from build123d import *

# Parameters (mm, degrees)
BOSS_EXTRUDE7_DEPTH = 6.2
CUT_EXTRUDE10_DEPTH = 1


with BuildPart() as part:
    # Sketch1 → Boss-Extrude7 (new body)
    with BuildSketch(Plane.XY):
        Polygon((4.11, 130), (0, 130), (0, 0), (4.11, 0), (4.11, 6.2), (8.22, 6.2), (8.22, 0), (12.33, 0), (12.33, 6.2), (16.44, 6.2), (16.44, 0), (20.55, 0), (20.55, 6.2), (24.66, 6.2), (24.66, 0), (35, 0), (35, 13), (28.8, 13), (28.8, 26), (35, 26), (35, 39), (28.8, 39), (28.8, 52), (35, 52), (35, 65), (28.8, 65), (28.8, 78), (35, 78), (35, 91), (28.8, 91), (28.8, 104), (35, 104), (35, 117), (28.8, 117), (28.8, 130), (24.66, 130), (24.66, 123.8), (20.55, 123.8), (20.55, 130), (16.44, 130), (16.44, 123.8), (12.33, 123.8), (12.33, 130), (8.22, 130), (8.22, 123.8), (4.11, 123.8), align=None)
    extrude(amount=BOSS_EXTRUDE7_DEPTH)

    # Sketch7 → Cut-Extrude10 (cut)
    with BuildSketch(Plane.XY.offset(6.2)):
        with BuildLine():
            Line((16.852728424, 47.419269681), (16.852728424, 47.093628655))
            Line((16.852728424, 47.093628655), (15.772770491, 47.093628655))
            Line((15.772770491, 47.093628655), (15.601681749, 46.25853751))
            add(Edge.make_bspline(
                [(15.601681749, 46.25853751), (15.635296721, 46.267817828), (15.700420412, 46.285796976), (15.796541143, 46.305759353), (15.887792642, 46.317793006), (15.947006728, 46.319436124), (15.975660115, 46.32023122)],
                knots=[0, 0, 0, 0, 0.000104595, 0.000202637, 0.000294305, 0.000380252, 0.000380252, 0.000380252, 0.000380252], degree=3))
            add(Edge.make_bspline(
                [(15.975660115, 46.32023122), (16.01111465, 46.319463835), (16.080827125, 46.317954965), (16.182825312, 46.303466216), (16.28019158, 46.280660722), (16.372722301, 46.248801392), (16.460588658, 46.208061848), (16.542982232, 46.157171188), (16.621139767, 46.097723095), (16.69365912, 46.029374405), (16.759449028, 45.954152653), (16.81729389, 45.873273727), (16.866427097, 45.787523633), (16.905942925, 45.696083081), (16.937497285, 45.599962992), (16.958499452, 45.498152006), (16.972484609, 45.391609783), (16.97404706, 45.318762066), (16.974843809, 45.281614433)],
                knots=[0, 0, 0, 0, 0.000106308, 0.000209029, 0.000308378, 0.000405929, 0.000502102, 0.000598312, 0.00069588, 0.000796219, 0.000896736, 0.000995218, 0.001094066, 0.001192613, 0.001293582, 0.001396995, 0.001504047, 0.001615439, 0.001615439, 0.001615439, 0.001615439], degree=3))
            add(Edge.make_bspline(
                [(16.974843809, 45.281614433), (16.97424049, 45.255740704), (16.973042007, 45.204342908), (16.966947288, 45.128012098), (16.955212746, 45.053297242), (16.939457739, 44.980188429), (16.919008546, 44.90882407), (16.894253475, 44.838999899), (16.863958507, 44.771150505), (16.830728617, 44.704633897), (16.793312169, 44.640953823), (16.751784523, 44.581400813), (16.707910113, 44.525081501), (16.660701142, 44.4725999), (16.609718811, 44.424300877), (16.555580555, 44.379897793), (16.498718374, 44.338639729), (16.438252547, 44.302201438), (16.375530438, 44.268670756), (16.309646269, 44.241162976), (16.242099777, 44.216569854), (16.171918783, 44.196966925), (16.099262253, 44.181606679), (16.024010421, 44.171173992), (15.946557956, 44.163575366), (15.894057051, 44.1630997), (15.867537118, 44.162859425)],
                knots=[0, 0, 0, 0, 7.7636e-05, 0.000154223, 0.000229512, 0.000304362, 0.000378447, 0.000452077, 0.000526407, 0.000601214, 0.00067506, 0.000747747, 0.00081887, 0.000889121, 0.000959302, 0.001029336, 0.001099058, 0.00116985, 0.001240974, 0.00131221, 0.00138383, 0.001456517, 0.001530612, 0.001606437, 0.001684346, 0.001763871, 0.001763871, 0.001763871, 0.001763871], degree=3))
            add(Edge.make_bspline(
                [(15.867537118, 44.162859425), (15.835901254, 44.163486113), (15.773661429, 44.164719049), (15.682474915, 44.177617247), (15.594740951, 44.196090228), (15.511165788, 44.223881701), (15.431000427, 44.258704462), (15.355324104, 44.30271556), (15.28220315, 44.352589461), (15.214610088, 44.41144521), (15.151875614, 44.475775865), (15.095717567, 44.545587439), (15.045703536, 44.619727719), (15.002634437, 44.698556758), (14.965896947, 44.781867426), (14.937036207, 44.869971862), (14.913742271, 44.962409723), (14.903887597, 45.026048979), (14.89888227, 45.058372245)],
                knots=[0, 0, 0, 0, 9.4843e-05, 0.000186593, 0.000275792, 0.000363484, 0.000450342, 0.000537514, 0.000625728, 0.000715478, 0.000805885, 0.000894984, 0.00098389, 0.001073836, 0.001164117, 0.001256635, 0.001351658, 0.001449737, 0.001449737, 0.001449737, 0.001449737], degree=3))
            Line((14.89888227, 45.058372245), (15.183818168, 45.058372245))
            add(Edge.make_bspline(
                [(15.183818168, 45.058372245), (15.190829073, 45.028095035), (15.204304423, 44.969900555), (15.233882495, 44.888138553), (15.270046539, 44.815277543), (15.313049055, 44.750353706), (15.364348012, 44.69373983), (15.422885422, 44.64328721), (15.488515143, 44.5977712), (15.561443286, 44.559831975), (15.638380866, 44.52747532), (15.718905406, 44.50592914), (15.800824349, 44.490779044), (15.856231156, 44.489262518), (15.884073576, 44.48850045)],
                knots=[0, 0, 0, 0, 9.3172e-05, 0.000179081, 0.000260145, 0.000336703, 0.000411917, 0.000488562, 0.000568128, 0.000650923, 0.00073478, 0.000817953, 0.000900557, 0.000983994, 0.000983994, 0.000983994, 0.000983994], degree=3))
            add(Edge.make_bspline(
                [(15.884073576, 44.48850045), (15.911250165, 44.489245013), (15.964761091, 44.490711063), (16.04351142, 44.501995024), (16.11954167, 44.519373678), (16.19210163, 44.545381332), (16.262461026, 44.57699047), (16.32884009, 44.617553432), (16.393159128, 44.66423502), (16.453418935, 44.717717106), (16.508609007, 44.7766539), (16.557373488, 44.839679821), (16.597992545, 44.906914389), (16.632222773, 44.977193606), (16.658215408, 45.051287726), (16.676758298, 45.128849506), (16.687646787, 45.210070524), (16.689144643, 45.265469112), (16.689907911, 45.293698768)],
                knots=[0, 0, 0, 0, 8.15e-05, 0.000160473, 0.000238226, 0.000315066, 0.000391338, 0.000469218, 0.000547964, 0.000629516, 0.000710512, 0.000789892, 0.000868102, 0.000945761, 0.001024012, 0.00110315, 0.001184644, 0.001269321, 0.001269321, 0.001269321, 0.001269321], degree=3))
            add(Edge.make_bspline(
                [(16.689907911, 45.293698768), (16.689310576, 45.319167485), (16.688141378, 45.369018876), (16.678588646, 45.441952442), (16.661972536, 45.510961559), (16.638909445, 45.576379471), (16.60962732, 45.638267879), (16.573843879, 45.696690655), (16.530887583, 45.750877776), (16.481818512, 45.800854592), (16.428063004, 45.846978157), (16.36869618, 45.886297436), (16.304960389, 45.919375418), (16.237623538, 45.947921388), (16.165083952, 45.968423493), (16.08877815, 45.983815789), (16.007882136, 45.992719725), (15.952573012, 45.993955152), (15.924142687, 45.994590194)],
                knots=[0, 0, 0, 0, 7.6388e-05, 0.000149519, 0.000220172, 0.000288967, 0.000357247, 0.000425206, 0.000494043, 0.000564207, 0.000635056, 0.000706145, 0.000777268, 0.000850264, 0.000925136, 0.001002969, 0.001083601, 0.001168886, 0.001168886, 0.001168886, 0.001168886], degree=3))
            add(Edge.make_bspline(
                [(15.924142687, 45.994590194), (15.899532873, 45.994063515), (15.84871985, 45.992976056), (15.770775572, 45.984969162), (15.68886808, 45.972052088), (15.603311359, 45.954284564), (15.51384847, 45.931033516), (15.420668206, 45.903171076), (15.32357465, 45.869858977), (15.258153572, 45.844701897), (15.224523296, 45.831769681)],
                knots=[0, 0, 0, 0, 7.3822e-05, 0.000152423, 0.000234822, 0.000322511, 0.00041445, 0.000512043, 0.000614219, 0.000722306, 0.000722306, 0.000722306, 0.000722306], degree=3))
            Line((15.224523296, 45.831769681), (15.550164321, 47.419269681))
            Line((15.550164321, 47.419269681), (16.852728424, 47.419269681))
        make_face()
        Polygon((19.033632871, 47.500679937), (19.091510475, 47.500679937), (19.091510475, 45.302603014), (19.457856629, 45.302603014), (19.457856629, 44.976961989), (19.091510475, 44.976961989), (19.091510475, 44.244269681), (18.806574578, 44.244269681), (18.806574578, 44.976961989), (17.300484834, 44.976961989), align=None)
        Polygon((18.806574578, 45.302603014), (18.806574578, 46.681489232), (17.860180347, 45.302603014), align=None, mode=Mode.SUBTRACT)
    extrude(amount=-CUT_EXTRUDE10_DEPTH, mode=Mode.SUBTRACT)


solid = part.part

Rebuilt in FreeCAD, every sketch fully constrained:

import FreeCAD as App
import Part
import Sketcher
Q = App.Units.Quantity


def add_polygon(sketch, points):
    """Adds a closed chain of lines whose ends are joined by coincident constraints."""
    first, n = sketch.GeometryCount, len(points)
    for a, b in zip(points, points[1:] + points[:1]):
        sketch.addGeometry(Part.LineSegment(App.Vector(*a, 0), App.Vector(*b, 0)), False)
    for i in range(n):
        sketch.addConstraint(Sketcher.Constraint("Coincident", first + i, 2, first + (i + 1) % n, 1))

doc = App.newDocument("Part")
body = doc.addObject("PartDesign::Body", "Body")

# Sketch on XY plane
sketch1 = doc.addObject("Sketcher::SketchObject", "Sketch")
body.addObject(sketch1)
sketch1.AttachmentSupport = (doc.XY_Plane, [""])
sketch1.MapMode = "FlatFace"
add_polygon(sketch1, [(4.1, 130), (0, 130), (0, 0), (4.1, 0), (4.1, 6.2), (8.2, 6.2), (8.2, 0), (12.3, 0), (12.3, 6.2), (16.4, 6.2), (16.4, 0), (20.6, 0), (20.6, 6.2), (24.7, 6.2), (24.7, 0), (35, 0), (35, 13), (28.8, 13), (28.8, 26), (35, 26), (35, 39), (28.8, 39), (28.8, 52), (35, 52), (35, 65), (28.8, 65), (28.8, 78), (35, 78), (35, 91), (28.8, 91), (28.8, 104), (35, 104), (35, 117), (28.8, 117), (28.8, 130), (24.7, 130), (24.7, 123.8), (20.6, 123.8), (20.6, 130), (16.4, 130), (16.4, 123.8), (12.3, 123.8), (12.3, 130), (8.2, 130), (8.2, 123.8), (4.1, 123.8)])  # lines 0-45
sketch1.addConstraint([
    Sketcher.Constraint("Horizontal", 0),
    Sketcher.Constraint("Vertical", 1),
    Sketcher.Constraint("Horizontal", 2),
    Sketcher.Constraint("Vertical", 3),
    Sketcher.Constraint("Horizontal", 4),
    Sketcher.Constraint("Vertical", 5),
    Sketcher.Constraint("Horizontal", 6),
    Sketcher.Constraint("Vertical", 7),
    Sketcher.Constraint("Horizontal", 8),
    Sketcher.Constraint("Vertical", 9),
    Sketcher.Constraint("Horizontal", 10),
    Sketcher.Constraint("Vertical", 11),
    Sketcher.Constraint("Horizontal", 12),
    Sketcher.Constraint("Vertical", 13),
    Sketcher.Constraint("Horizontal", 14),
    Sketcher.Constraint("Vertical", 15),
    Sketcher.Constraint("Horizontal", 16),
    Sketcher.Constraint("Vertical", 17),
    Sketcher.Constraint("Horizontal", 18),
    Sketcher.Constraint("Vertical", 19),
    Sketcher.Constraint("Horizontal", 20),
    Sketcher.Constraint("Vertical", 21),
    Sketcher.Constraint("Horizontal", 22),
    Sketcher.Constraint("Vertical", 23),
    Sketcher.Constraint("Horizontal", 24),
    Sketcher.Constraint("Vertical", 25),
    Sketcher.Constraint("Horizontal", 26),
    Sketcher.Constraint("Vertical", 27),
    Sketcher.Constraint("Horizontal", 28),
    Sketcher.Constraint("Vertical", 29),
    Sketcher.Constraint("Horizontal", 30),
    Sketcher.Constraint("Vertical", 31),
    Sketcher.Constraint("Horizontal", 32),
    Sketcher.Constraint("Vertical", 33),
    Sketcher.Constraint("Horizontal", 34),
    Sketcher.Constraint("Vertical", 35),
    Sketcher.Constraint("Horizontal", 36),
    Sketcher.Constraint("Vertical", 37),
    Sketcher.Constraint("Horizontal", 38),
    Sketcher.Constraint("Vertical", 39),
    Sketcher.Constraint("Horizontal", 40),
    Sketcher.Constraint("Vertical", 41),
    Sketcher.Constraint("Horizontal", 42),
    Sketcher.Constraint("Vertical", 43),
    Sketcher.Constraint("Horizontal", 44),
    Sketcher.Constraint("Vertical", 45),
    Sketcher.Constraint("Coincident", 1, 2, -1, 1),
    Sketcher.Constraint("PointOnObject", 5, 2, -1),
    Sketcher.Constraint("PointOnObject", 9, 2, -1),
    Sketcher.Constraint("PointOnObject", 13, 2, -1),
    Sketcher.Constraint("Horizontal", 4, 2, 7, 2),
    Sketcher.Constraint("Horizontal", 8, 2, 11, 2),
    Sketcher.Constraint("Horizontal", 0, 2, 33, 2),
    Sketcher.Constraint("Horizontal", 34, 2, 37, 2),
    Sketcher.Constraint("Horizontal", 36, 2, 39, 2),
    Sketcher.Constraint("Horizontal", 38, 2, 41, 2),
    Sketcher.Constraint("Horizontal", 40, 2, 43, 2),
    Sketcher.Constraint("Vertical", 15, 2, 18, 2),
    Sketcher.Constraint("Vertical", 17, 2, 20, 2),
    Sketcher.Constraint("Vertical", 19, 2, 22, 2),
    Sketcher.Constraint("Vertical", 21, 2, 24, 2),
    Sketcher.Constraint("Vertical", 23, 2, 26, 2),
    Sketcher.Constraint("Vertical", 25, 2, 28, 2),
    Sketcher.Constraint("Vertical", 27, 2, 30, 2),
    Sketcher.Constraint("Vertical", 29, 2, 32, 2),
    Sketcher.Constraint("Vertical", 13, 2, 34, 2),
    Sketcher.Constraint("Vertical", 11, 2, 36, 2),
    Sketcher.Constraint("Vertical", 9, 2, 38, 2),
    Sketcher.Constraint("Vertical", 7, 2, 40, 2),
    Sketcher.Constraint("Vertical", 5, 2, 42, 2),
    Sketcher.Constraint("Vertical", 3, 2, 44, 2),
    Sketcher.Constraint("Equal", 2, 4),
    Sketcher.Constraint("Equal", 4, 6),
    Sketcher.Constraint("Equal", 6, 8),
    Sketcher.Constraint("Equal", 8, 10),
    Sketcher.Constraint("Equal", 10, 12),
    Sketcher.Constraint("Equal", 32, 3),
    Sketcher.Constraint("Equal", 15, 17),
    Sketcher.Constraint("Equal", 17, 19),
    Sketcher.Constraint("Equal", 19, 21),
    Sketcher.Constraint("Equal", 21, 23),
    Sketcher.Constraint("Equal", 23, 25),
    Sketcher.Constraint("Equal", 25, 27),
    Sketcher.Constraint("Equal", 27, 29),
    Sketcher.Constraint("Equal", 29, 31),
    Sketcher.Constraint("Equal", 31, 33),
    Sketcher.Constraint("Equal", 13, 35),
    Sketcher.Constraint("DistanceY", 1, 2, 1, 1, Q("130 mm")),
    Sketcher.Constraint("DistanceX", 16, 2, 16, 1, Q("6.2 mm")),
    Sketcher.Constraint("DistanceX", -1, 1, 14, 2, Q("35 mm")),
    Sketcher.Constraint("DistanceX", 0, 2, 0, 1, Q("4.11 mm")),
])
pad1 = doc.addObject("PartDesign::Pad", "Pad")
body.addObject(pad1)
pad1.Profile = sketch1
pad1.Length = 6.2

# Sketch on XY plane
sketch2 = doc.addObject("Sketcher::SketchObject", "Sketch001")
body.addObject(sketch2)
sketch2.AttachmentSupport = (doc.XY_Plane, [""])
sketch2.MapMode = "FlatFace"
sketch2.AttachmentOffset = App.Placement(App.Vector(0, 0, 6.2), App.Rotation())
sketch2.addGeometry(Part.LineSegment(App.Vector(16.852728, 47.093629, 0), App.Vector(16.852728, 47.41927, 0)), False)  # 0
sketch2.addGeometry(Part.LineSegment(App.Vector(16.852728, 47.41927, 0), App.Vector(15.550164, 47.41927, 0)), False)  # 1
sketch2.addGeometry(Part.LineSegment(App.Vector(15.550164, 47.41927, 0), App.Vector(15.224523, 45.83177, 0)), False)  # 2
sketch2.addGeometry(Part.BSplineCurve([App.Vector(15.924143, 45.99459, 0), App.Vector(15.899533, 45.994064, 0), App.Vector(15.84872, 45.992976, 0), App.Vector(15.770776, 45.984969, 0), App.Vector(15.688868, 45.972052, 0), App.Vector(15.603311, 45.954285, 0), App.Vector(15.513848, 45.931034, 0), App.Vector(15.420668, 45.903171, 0), App.Vector(15.323575, 45.869859, 0), App.Vector(15.258154, 45.844702, 0), App.Vector(15.224523, 45.83177, 0)], [4, 1, 1, 1, 1, 1, 1, 1, 4], [0, 0.000073822, 0.000152423, 0.000234822, 0.000322511, 0.00041445, 0.000512043, 0.000614219, 0.000722306], False, 3, [1, 1, 1, 1, 1, 1, 1, 1, 1, 1, 1], False), False)  # 3
sketch2.addGeometry(Part.BSplineCurve([App.Vector(16.689908, 45.293699, 0), App.Vector(16.689311, 45.319167, 0), App.Vector(16.688141, 45.369019, 0), App.Vector(16.678589, 45.441952, 0), App.Vector(16.661973, 45.510962, 0), App.Vector(16.638909, 45.576379, 0), App.Vector(16.609627, 45.638268, 0), App.Vector(16.573844, 45.696691, 0), App.Vector(16.530888, 45.750878, 0), App.Vector(16.481819, 45.800855, 0), App.Vector(16.428063, 45.846978, 0), App.Vector(16.368696, 45.886297, 0), App.Vector(16.30496, 45.919375, 0), App.Vector(16.237624, 45.947921, 0), App.Vector(16.165084, 45.968423, 0), App.Vector(16.088778, 45.983816, 0), App.Vector(16.007882, 45.99272, 0), App.Vector(15.952573, 45.993955, 0), App.Vector(15.924143, 45.99459, 0)], [4, 1, 1, 1, 1, 1, 1, 1, 1, 1, 1, 1, 1, 1, 1, 1, 4], [0, 0.000076388, 0.000149519, 0.000220172, 0.000288967, 0.000357247, 0.000425206, 0.000494043, 0.000564207, 0.000635056, 0.000706145, 0.000777268, 0.000850264, 0.000925136, 0.001002969, 0.001083601, 0.001168886], False, 3, [1, 1, 1, 1, 1, 1, 1, 1, 1, 1, 1, 1, 1, 1, 1, 1, 1, 1, 1], False), False)  # 4
sketch2.addGeometry(Part.BSplineCurve([App.Vector(15.884074, 44.4885, 0), App.Vector(15.91125, 44.489245, 0), App.Vector(15.964761, 44.490711, 0), App.Vector(16.043511, 44.501995, 0), App.Vector(16.119542, 44.519374, 0), App.Vector(16.192102, 44.545381, 0), App.Vector(16.262461, 44.57699, 0), App.Vector(16.32884, 44.617553, 0), App.Vector(16.393159, 44.664235, 0), App.Vector(16.453419, 44.717717, 0), App.Vector(16.508609, 44.776654, 0), App.Vector(16.557373, 44.83968, 0), App.Vector(16.597993, 44.906914, 0), App.Vector(16.632223, 44.977194, 0), App.Vector(16.658215, 45.051288, 0), App.Vector(16.676758, 45.12885, 0), App.Vector(16.687647, 45.210071, 0), App.Vector(16.689145, 45.265469, 0), App.Vector(16.689908, 45.293699, 0)], [4, 1, 1, 1, 1, 1, 1, 1, 1, 1, 1, 1, 1, 1, 1, 1, 4], [0, 0.0000815, 0.000160473, 0.000238226, 0.000315066, 0.000391338, 0.000469218, 0.000547964, 0.000629516, 0.000710512, 0.000789892, 0.000868102, 0.000945761, 0.001024012, 0.00110315, 0.001184644, 0.001269321], False, 3, [1, 1, 1, 1, 1, 1, 1, 1, 1, 1, 1, 1, 1, 1, 1, 1, 1, 1, 1], False), False)  # 5
sketch2.addGeometry(Part.BSplineCurve([App.Vector(15.183818, 45.058372, 0), App.Vector(15.190829, 45.028095, 0), App.Vector(15.204304, 44.969901, 0), App.Vector(15.233882, 44.888139, 0), App.Vector(15.270047, 44.815278, 0), App.Vector(15.313049, 44.750354, 0), App.Vector(15.364348, 44.69374, 0), App.Vector(15.422885, 44.643287, 0), App.Vector(15.488515, 44.597771, 0), App.Vector(15.561443, 44.559832, 0), App.Vector(15.638381, 44.527475, 0), App.Vector(15.718905, 44.505929, 0), App.Vector(15.800824, 44.490779, 0), App.Vector(15.856231, 44.489263, 0), App.Vector(15.884074, 44.4885, 0)], [4, 1, 1, 1, 1, 1, 1, 1, 1, 1, 1, 1, 4], [0, 0.000093172, 0.000179081, 0.000260145, 0.000336703, 0.000411917, 0.000488562, 0.000568128, 0.000650923, 0.00073478, 0.000817953, 0.000900557, 0.000983994], False, 3, [1, 1, 1, 1, 1, 1, 1, 1, 1, 1, 1, 1, 1, 1, 1], False), False)  # 6
sketch2.addGeometry(Part.LineSegment(App.Vector(15.183818, 45.058372, 0), App.Vector(14.898882, 45.058372, 0)), False)  # 7
sketch2.addGeometry(Part.BSplineCurve([App.Vector(15.867537, 44.162859, 0), App.Vector(15.835901, 44.163486, 0), App.Vector(15.773661, 44.164719, 0), App.Vector(15.682475, 44.177617, 0), App.Vector(15.594741, 44.19609, 0), App.Vector(15.511166, 44.223882, 0), App.Vector(15.431, 44.258704, 0), App.Vector(15.355324, 44.302716, 0), App.Vector(15.282203, 44.352589, 0), App.Vector(15.21461, 44.411445, 0), App.Vector(15.151876, 44.475776, 0), App.Vector(15.095718, 44.545587, 0), App.Vector(15.045704, 44.619728, 0), App.Vector(15.002634, 44.698557, 0), App.Vector(14.965897, 44.781867, 0), App.Vector(14.937036, 44.869972, 0), App.Vector(14.913742, 44.96241, 0), App.Vector(14.903888, 45.026049, 0), App.Vector(14.898882, 45.058372, 0)], [4, 1, 1, 1, 1, 1, 1, 1, 1, 1, 1, 1, 1, 1, 1, 1, 4], [0, 0.000094843, 0.000186593, 0.000275792, 0.000363484, 0.000450342, 0.000537514, 0.000625728, 0.000715478, 0.000805885, 0.000894984, 0.00098389, 0.001073836, 0.001164117, 0.001256635, 0.001351658, 0.001449737], False, 3, [1, 1, 1, 1, 1, 1, 1, 1, 1, 1, 1, 1, 1, 1, 1, 1, 1, 1, 1], False), False)  # 8
sketch2.addGeometry(Part.BSplineCurve([App.Vector(16.974844, 45.281614, 0), App.Vector(16.97424, 45.255741, 0), App.Vector(16.973042, 45.204343, 0), App.Vector(16.966947, 45.128012, 0), App.Vector(16.955213, 45.053297, 0), App.Vector(16.939458, 44.980188, 0), App.Vector(16.919009, 44.908824, 0), App.Vector(16.894253, 44.839, 0), App.Vector(16.863959, 44.771151, 0), App.Vector(16.830729, 44.704634, 0), App.Vector(16.793312, 44.640954, 0), App.Vector(16.751785, 44.581401, 0), App.Vector(16.70791, 44.525082, 0), App.Vector(16.660701, 44.4726, 0), App.Vector(16.609719, 44.424301, 0), App.Vector(16.555581, 44.379898, 0), App.Vector(16.498718, 44.33864, 0), App.Vector(16.438253, 44.302201, 0), App.Vector(16.37553, 44.268671, 0), App.Vector(16.309646, 44.241163, 0), App.Vector(16.2421, 44.21657, 0), App.Vector(16.171919, 44.196967, 0), App.Vector(16.099262, 44.181607, 0), App.Vector(16.02401, 44.171174, 0), App.Vector(15.946558, 44.163575, 0), App.Vector(15.894057, 44.1631, 0), App.Vector(15.867537, 44.162859, 0)], [4, 1, 1, 1, 1, 1, 1, 1, 1, 1, 1, 1, 1, 1, 1, 1, 1, 1, 1, 1, 1, 1, 1, 1, 4], [0, 0.000077636, 0.000154223, 0.000229512, 0.000304362, 0.000378447, 0.000452077, 0.000526407, 0.000601214, 0.00067506, 0.000747747, 0.00081887, 0.000889121, 0.000959302, 0.001029336, 0.001099058, 0.00116985, 0.001240974, 0.00131221, 0.00138383, 0.001456517, 0.001530612, 0.001606437, 0.001684346, 0.001763871], False, 3, [1, 1, 1, 1, 1, 1, 1, 1, 1, 1, 1, 1, 1, 1, 1, 1, 1, 1, 1, 1, 1, 1, 1, 1, 1, 1, 1], False), False)  # 9
sketch2.addGeometry(Part.BSplineCurve([App.Vector(15.97566, 46.320231, 0), App.Vector(16.011115, 46.319464, 0), App.Vector(16.080827, 46.317955, 0), App.Vector(16.182825, 46.303466, 0), App.Vector(16.280192, 46.280661, 0), App.Vector(16.372722, 46.248801, 0), App.Vector(16.460589, 46.208062, 0), App.Vector(16.542982, 46.157171, 0), App.Vector(16.62114, 46.097723, 0), App.Vector(16.693659, 46.029374, 0), App.Vector(16.759449, 45.954153, 0), App.Vector(16.817294, 45.873274, 0), App.Vector(16.866427, 45.787524, 0), App.Vector(16.905943, 45.696083, 0), App.Vector(16.937497, 45.599963, 0), App.Vector(16.958499, 45.498152, 0), App.Vector(16.972485, 45.39161, 0), App.Vector(16.974047, 45.318762, 0), App.Vector(16.974844, 45.281614, 0)], [4, 1, 1, 1, 1, 1, 1, 1, 1, 1, 1, 1, 1, 1, 1, 1, 4], [0, 0.000106308, 0.000209029, 0.000308378, 0.000405929, 0.000502102, 0.000598312, 0.00069588, 0.000796219, 0.000896736, 0.000995218, 0.001094066, 0.001192613, 0.001293582, 0.001396995, 0.001504047, 0.001615439], False, 3, [1, 1, 1, 1, 1, 1, 1, 1, 1, 1, 1, 1, 1, 1, 1, 1, 1, 1, 1], False), False)  # 10
sketch2.addGeometry(Part.BSplineCurve([App.Vector(15.601682, 46.258538, 0), App.Vector(15.635297, 46.267818, 0), App.Vector(15.70042, 46.285797, 0), App.Vector(15.796541, 46.305759, 0), App.Vector(15.887793, 46.317793, 0), App.Vector(15.947007, 46.319436, 0), App.Vector(15.97566, 46.320231, 0)], [4, 1, 1, 1, 4], [0, 0.000104595, 0.000202637, 0.000294305, 0.000380252], False, 3, [1, 1, 1, 1, 1, 1, 1], False), False)  # 11
sketch2.addGeometry(Part.LineSegment(App.Vector(15.601682, 46.258538, 0), App.Vector(15.77277, 47.093629, 0)), False)  # 12
sketch2.addGeometry(Part.LineSegment(App.Vector(15.77277, 47.093629, 0), App.Vector(16.852728, 47.093629, 0)), False)  # 13
add_polygon(sketch2, [(19.09151, 47.50068), (19.033633, 47.50068), (17.300485, 44.976962), (18.806575, 44.976962), (18.806575, 44.24427), (19.09151, 44.24427), (19.09151, 44.976962), (19.457857, 44.976962), (19.457857, 45.302603), (19.09151, 45.302603)])  # lines 14-23
add_polygon(sketch2, [(18.806575, 45.302603), (17.86018, 45.302603), (18.806575, 46.681489)])  # lines 24-26
sketch2.addConstraint([
    Sketcher.Constraint("Block", 3),
    Sketcher.Constraint("Block", 4),
    Sketcher.Constraint("Block", 5),
    Sketcher.Constraint("Block", 6),
    Sketcher.Constraint("Block", 8),
    Sketcher.Constraint("Block", 9),
    Sketcher.Constraint("Block", 10),
    Sketcher.Constraint("Block", 11),
    Sketcher.Constraint("Coincident", 0, 2, 1, 1),
    Sketcher.Constraint("Coincident", 1, 2, 2, 1),
    Sketcher.Constraint("Coincident", 2, 2, 3, 2),
    Sketcher.Constraint("Coincident", 6, 1, 7, 1),
    Sketcher.Constraint("Coincident", 7, 2, 8, 2),
    Sketcher.Constraint("Coincident", 11, 1, 12, 1),
    Sketcher.Constraint("Coincident", 12, 2, 13, 1),
    Sketcher.Constraint("Coincident", 13, 2, 0, 1),
    Sketcher.Constraint("Vertical", 0),
    Sketcher.Constraint("Horizontal", 1),
    Sketcher.Constraint("Horizontal", 13),
    Sketcher.Constraint("Horizontal", 14),
    Sketcher.Constraint("Horizontal", 16),
    Sketcher.Constraint("Vertical", 17),
    Sketcher.Constraint("Horizontal", 18),
    Sketcher.Constraint("Vertical", 19),
    Sketcher.Constraint("Horizontal", 20),
    Sketcher.Constraint("Vertical", 21),
    Sketcher.Constraint("Horizontal", 22),
    Sketcher.Constraint("Vertical", 23),
    Sketcher.Constraint("Horizontal", 24),
    Sketcher.Constraint("Vertical", 26),
    Sketcher.Constraint("DistanceY", 17, 2, 0, 2, Q("3.175 mm")),
    Sketcher.Constraint("DistanceX", 16, 1, 16, 2, Q("1.50609 mm")),
    Sketcher.Constraint("DistanceY", 0, 1, 0, 2, Q("0.325641 mm")),
    Sketcher.Constraint("DistanceY", 21, 1, 21, 2, Q("0.325641 mm")),
    Sketcher.Constraint("DistanceY", 2, 2, 1, 2, Q("1.5875 mm")),
    Sketcher.Constraint("Distance", 15, Q("3.061528 mm")),
    Sketcher.Constraint("Distance", 25, Q("1.67242 mm")),
    Sketcher.Constraint("DistanceX", 1, 2, 1, 1, Q("1.302564 mm")),
    Sketcher.Constraint("DistanceX", 13, 1, 13, 2, Q("1.079958 mm")),
    Sketcher.Constraint("DistanceX", 14, 2, 14, 1, Q("0.057878 mm")),
    Sketcher.Constraint("DistanceX", 18, 1, 18, 2, Q("0.284936 mm")),
    Sketcher.Constraint("DistanceX", 20, 1, 20, 2, Q("0.366346 mm")),
    Sketcher.Constraint("DistanceX", 22, 2, 22, 1, Q("0.366346 mm")),
    Sketcher.Constraint("DistanceX", 24, 2, 24, 1, Q("0.946394 mm")),
    Sketcher.Constraint("DistanceY", 17, 2, 17, 1, Q("0.732692 mm")),
    Sketcher.Constraint("DistanceY", 19, 1, 19, 2, Q("0.732692 mm")),
    Sketcher.Constraint("DistanceX", -1, 1, 0, 2, Q("16.852728 mm")),
    Sketcher.Constraint("DistanceX", -1, 1, 18, 2, Q("19.09151 mm")),
    Sketcher.Constraint("DistanceX", -1, 1, 24, 2, Q("17.86018 mm")),
    Sketcher.Constraint("DistanceY", -1, 1, 25, 2, Q("46.681489 mm")),
])
pocket1 = doc.addObject("PartDesign::Pocket", "Pocket")
body.addObject(pocket1)
pocket1.Profile = sketch2
pocket1.Length = 1

doc.recompute()
